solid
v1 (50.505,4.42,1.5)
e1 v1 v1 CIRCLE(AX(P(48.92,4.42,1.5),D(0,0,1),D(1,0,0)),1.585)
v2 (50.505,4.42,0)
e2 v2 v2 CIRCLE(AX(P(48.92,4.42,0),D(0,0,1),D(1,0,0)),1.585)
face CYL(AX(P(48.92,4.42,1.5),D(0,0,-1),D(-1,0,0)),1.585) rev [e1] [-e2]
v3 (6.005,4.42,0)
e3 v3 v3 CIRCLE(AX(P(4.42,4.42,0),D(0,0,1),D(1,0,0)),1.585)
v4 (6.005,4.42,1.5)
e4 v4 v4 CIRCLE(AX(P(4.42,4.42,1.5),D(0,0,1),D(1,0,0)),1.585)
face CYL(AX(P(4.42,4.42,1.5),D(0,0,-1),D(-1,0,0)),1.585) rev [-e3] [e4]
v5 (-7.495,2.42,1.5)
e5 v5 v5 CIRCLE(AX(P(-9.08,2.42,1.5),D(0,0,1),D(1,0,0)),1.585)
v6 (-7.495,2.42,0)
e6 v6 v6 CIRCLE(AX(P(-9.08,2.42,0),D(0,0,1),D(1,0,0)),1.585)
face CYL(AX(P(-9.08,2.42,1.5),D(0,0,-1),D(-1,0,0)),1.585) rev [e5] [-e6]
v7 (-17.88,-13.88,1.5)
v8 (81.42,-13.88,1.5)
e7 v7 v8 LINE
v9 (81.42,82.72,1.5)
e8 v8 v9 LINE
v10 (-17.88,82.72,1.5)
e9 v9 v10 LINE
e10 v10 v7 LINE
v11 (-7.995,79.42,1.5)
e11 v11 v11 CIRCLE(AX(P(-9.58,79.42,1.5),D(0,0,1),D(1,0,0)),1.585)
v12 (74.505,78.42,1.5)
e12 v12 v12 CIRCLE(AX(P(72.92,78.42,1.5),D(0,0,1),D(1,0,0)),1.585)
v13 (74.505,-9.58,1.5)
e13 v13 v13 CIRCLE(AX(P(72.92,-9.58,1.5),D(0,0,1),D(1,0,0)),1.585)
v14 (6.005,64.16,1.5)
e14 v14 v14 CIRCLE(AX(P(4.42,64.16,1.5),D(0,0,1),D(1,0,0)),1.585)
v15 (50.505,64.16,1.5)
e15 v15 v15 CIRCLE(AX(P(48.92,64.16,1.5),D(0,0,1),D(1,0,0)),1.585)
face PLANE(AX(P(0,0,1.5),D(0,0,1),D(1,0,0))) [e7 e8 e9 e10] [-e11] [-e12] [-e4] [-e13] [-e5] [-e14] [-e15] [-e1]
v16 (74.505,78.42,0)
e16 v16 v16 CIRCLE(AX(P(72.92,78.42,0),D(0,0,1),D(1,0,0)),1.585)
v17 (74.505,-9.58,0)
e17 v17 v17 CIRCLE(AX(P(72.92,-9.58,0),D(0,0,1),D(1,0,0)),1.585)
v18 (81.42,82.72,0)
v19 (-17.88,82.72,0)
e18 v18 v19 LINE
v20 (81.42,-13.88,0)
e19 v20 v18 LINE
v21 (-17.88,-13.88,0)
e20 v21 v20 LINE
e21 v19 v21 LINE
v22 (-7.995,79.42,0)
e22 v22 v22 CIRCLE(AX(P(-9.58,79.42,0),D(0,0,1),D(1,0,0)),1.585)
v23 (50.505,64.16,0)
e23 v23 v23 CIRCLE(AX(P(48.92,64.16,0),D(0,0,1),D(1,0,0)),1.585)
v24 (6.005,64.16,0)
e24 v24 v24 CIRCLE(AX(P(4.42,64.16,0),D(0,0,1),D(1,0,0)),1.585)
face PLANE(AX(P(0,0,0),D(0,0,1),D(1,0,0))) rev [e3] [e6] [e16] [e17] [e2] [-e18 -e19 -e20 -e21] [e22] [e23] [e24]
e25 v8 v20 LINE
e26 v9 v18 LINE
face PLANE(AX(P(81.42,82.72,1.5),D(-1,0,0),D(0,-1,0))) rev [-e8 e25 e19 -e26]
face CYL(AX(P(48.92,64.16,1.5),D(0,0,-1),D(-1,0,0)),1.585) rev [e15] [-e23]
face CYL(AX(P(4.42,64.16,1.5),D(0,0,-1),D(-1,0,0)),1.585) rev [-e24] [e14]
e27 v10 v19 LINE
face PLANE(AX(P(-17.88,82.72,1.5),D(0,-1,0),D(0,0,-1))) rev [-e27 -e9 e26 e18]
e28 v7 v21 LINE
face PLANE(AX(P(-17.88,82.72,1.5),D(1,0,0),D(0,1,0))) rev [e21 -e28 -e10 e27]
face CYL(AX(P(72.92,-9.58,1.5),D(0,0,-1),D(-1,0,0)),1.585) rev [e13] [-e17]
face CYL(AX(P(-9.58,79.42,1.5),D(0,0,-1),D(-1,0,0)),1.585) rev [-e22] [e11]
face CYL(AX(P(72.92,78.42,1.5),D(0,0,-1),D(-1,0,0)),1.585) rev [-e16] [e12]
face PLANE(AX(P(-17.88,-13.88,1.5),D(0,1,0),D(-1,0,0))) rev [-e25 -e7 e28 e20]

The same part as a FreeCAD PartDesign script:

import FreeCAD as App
import Part
import Sketcher

V = App.Vector

doc = App.newDocument("Part")
body = doc.addObject("PartDesign::Body", "Body")

# Sketch on XY plane
sketch1 = body.newObject("Sketcher::SketchObject", "Sketch")
sketch1.AttachmentSupport = (doc.getObject("XY_Plane"), [""])
sketch1.MapMode = "FlatFace"
sketch1.addGeometry(Part.LineSegment(V(-17.9, 82.7, 0), V(-17.9, -13.9, 0)), False)
sketch1.addGeometry(Part.LineSegment(V(-17.9, -13.9, 0), V(81.4, -13.9, 0)), False)
sketch1.addGeometry(Part.LineSegment(V(81.4, -13.9, 0), V(81.4, 82.7, 0)), False)
sketch1.addGeometry(Part.LineSegment(V(81.4, 82.7, 0), V(-17.9, 82.7, 0)), False)
sketch1.addGeometry(Part.Circle(V(-9.1, 2.4, 0), V(0, 0, 1), 1.6), False)
sketch1.addGeometry(Part.Circle(V(4.4, 4.4, 0), V(0, 0, 1), 1.6), False)
sketch1.addGeometry(Part.Circle(V(48.9, 4.4, 0), V(0, 0, 1), 1.6), False)
sketch1.addGeometry(Part.Circle(V(72.9, -9.6, 0), V(0, 0, 1), 1.6), False)
sketch1.addGeometry(Part.Circle(V(4.4, 64.2, 0), V(0, 0, 1), 1.6), False)
sketch1.addGeometry(Part.Circle(V(-9.6, 79.4, 0), V(0, 0, 1), 1.6), False)
sketch1.addGeometry(Part.Circle(V(48.9, 64.2, 0), V(0, 0, 1), 1.6), False)
sketch1.addGeometry(Part.Circle(V(72.9, 78.4, 0), V(0, 0, 1), 1.6), False)
sketch1.addConstraint(Sketcher.Constraint("Coincident", 0, 2, 1, 1))
sketch1.addConstraint(Sketcher.Constraint("Coincident", 1, 2, 2, 1))
sketch1.addConstraint(Sketcher.Constraint("Coincident", 2, 2, 3, 1))
sketch1.addConstraint(Sketcher.Constraint("Coincident", 3, 2, 0, 1))
sketch1.addConstraint(Sketcher.Constraint("Vertical", 0))
sketch1.addConstraint(Sketcher.Constraint("Horizontal", 1))
sketch1.addConstraint(Sketcher.Constraint("Vertical", 2))
sketch1.addConstraint(Sketcher.Constraint("Horizontal", 3))
sketch1.addConstraint(Sketcher.Constraint("Equal", 4, 5))
sketch1.addConstraint(Sketcher.Constraint("Equal", 5, 6))
sketch1.addConstraint(Sketcher.Constraint("Equal", 6, 7))
sketch1.addConstraint(Sketcher.Constraint("Equal", 7, 8))
sketch1.addConstraint(Sketcher.Constraint("Equal", 8, 9))
sketch1.addConstraint(Sketcher.Constraint("Equal", 9, 10))
sketch1.addConstraint(Sketcher.Constraint("Equal", 10, 11))
sketch1.addConstraint(Sketcher.Constraint("Horizontal", 5, 3, 6, 3))
sketch1.addConstraint(Sketcher.Constraint("Horizontal", 8, 3, 10, 3))
sketch1.addConstraint(Sketcher.Constraint("Vertical", 5, 3, 8, 3))
sketch1.addConstraint(Sketcher.Constraint("Vertical", 6, 3, 10, 3))
sketch1.addConstraint(Sketcher.Constraint("Vertical", 7, 3, 11, 3))
sketch1.addConstraint(Sketcher.Constraint("Diameter", 4, 3.17))
sketch1.addConstraint(Sketcher.Constraint("DistanceX", 1, 1, 1, 2, 99.3))
sketch1.addConstraint(Sketcher.Constraint("DistanceY", 0, 2, 0, 1, 96.6))
sketch1.addConstraint(Sketcher.Constraint("DistanceY", 4, 3, 5, 3, 2.0))
sketch1.addConstraint(Sketcher.Constraint("DistanceX", 4, 3, 6, 3, 58.0))
sketch1.addConstraint(Sketcher.Constraint("DistanceX", 6, 3, 7, 3, 24.0))
sketch1.addConstraint(Sketcher.Constraint("DistanceY", 7, 3, 6, 3, 14.0))
sketch1.addConstraint(Sketcher.Constraint("DistanceX", 9, 3, 8, 3, 14.0))
sketch1.addConstraint(Sketcher.Constraint("DistanceY", 5, 3, 9, 3, 75.0))
sketch1.addConstraint(Sketcher.Constraint("DistanceY", 6, 3, 11, 3, 74.0))
sketch1.addConstraint(Sketcher.Constraint("DistanceX", 5, 3, 1, 2, 77.0))
sketch1.addConstraint(Sketcher.Constraint("DistanceX", 4, 3, 5, 3, 13.5))
sketch1.addConstraint(Sketcher.Constraint("DistanceY", 0, 2, 4, 3, 16.3))
sketch1.addConstraint(Sketcher.Constraint("DistanceX", 4, 3, -1, 1, 9.08))
sketch1.addConstraint(Sketcher.Constraint("DistanceY", -1, 1, 4, 3, 2.42))
sketch1.addConstraint(Sketcher.Constraint("DistanceY", -1, 1, 8, 3, 64.16))
pad1 = body.newObject("PartDesign::Pad", "Pad")
pad1.Profile = sketch1
pad1.Length = 1.5

doc.recompute()
